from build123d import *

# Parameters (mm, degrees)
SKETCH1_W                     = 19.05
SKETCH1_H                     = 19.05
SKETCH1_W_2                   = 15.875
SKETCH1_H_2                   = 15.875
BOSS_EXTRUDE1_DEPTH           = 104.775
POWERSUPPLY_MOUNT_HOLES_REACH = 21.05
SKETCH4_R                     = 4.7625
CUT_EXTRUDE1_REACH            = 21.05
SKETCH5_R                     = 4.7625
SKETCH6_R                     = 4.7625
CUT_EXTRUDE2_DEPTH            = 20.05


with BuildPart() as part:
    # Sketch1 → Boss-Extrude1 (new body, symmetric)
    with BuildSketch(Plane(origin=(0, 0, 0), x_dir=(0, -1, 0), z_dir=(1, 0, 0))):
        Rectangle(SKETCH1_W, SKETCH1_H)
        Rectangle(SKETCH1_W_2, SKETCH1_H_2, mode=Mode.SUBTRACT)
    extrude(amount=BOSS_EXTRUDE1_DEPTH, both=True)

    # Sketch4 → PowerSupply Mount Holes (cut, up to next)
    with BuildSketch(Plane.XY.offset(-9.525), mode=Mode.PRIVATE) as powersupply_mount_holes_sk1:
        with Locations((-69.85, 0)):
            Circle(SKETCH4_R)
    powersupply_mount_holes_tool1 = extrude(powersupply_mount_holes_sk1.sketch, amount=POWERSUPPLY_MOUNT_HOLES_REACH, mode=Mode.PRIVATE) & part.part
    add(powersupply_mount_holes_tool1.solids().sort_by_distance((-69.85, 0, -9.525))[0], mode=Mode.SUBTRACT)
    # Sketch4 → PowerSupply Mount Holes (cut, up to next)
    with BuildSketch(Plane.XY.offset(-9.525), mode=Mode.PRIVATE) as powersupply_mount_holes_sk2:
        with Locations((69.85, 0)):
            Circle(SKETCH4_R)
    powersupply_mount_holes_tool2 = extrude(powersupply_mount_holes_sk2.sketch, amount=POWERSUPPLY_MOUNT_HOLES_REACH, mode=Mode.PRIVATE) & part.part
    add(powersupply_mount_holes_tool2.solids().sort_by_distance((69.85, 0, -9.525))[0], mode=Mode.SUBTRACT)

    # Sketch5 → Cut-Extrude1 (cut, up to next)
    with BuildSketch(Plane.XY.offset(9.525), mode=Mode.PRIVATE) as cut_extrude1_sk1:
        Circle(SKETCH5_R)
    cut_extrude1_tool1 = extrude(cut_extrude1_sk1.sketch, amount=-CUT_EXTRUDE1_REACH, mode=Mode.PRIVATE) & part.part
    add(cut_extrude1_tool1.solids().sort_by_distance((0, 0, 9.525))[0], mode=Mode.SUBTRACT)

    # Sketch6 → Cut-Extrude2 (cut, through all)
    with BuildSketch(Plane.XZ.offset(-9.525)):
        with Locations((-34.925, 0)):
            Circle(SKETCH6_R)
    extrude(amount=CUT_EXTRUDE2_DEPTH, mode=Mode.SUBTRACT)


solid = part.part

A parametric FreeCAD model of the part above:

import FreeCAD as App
import Part
import Sketcher

V = App.Vector
Q = App.Units.Quantity

doc = App.newDocument("Part")
body = doc.addObject("PartDesign::Body", "Body")

# Sketch on YZ plane
sketch1 = body.newObject("Sketcher::SketchObject", "Sketch")
sketch1.AttachmentSupport = (doc.getObject("YZ_Plane"), [""])
sketch1.MapMode = "FlatFace"
sketch1.addGeometry([
    Part.LineSegment(V(10, -10, 0), V(10, 10, 0)),  # 0
    Part.LineSegment(V(10, 10, 0), V(-10, 10, 0)),  # 1
    Part.LineSegment(V(-10, 10, 0), V(-10, -10, 0)),  # 2
    Part.LineSegment(V(-10, -10, 0), V(10, -10, 0)),  # 3
    Part.LineSegment(V(-8, 8, 0), V(8, 8, 0)),  # 4
    Part.LineSegment(V(8, 8, 0), V(8, -8, 0)),  # 5
    Part.LineSegment(V(8, -8, 0), V(-8, -8, 0)),  # 6
    Part.LineSegment(V(-8, -8, 0), V(-8, 8, 0)),  # 7
], False)
sketch1.addConstraint([
    Sketcher.Constraint("Coincident", 0, 2, 1, 1),
    Sketcher.Constraint("Coincident", 1, 2, 2, 1),
    Sketcher.Constraint("Coincident", 2, 2, 3, 1),
    Sketcher.Constraint("Coincident", 3, 2, 0, 1),
    Sketcher.Constraint("Coincident", 4, 2, 5, 1),
    Sketcher.Constraint("Coincident", 5, 2, 6, 1),
    Sketcher.Constraint("Coincident", 6, 2, 7, 1),
    Sketcher.Constraint("Coincident", 7, 2, 4, 1),
    Sketcher.Constraint("Vertical", 0),
    Sketcher.Constraint("Horizontal", 1),
    Sketcher.Constraint("Vertical", 2),
    Sketcher.Constraint("Horizontal", 3),
    Sketcher.Constraint("Horizontal", 4),
    Sketcher.Constraint("Vertical", 5),
    Sketcher.Constraint("Horizontal", 6),
    Sketcher.Constraint("Vertical", 7),
    Sketcher.Constraint("Symmetric", 0, 2, 2, 2, -1, 1),
    Sketcher.Constraint("Symmetric", 4, 2, 6, 2, -1, 1),
    Sketcher.Constraint("Equal", 3, 0),
    Sketcher.Constraint("Equal", 6, 5),
    Sketcher.Constraint("DistanceX", 1, 2, 1, 1, Q("0.75 in")),
    Sketcher.Constraint("DistanceX", 4, 1, 4, 2, Q("0.625 in")),
])
pad1 = body.newObject("PartDesign::Pad", "Pad")
pad1.Profile = sketch1
pad1.Length = Q("8.25 in")
pad1.Midplane = True

# Sketch on XY plane
sketch2 = body.newObject("Sketcher::SketchObject", "Sketch001")
sketch2.AttachmentSupport = (doc.getObject("XY_Plane"), [""])
sketch2.MapMode = "FlatFace"
sketch2.AttachmentOffset = App.Placement(V(0, 0, -0.375 * 25.4), App.Rotation())
sketch2.addGeometry(Part.Circle(V(-69.8, 0, 0), V(0, 0, 1), 4.8), False)
sketch2.addConstraint([
    Sketcher.Constraint("PointOnObject", 0, 3, -1),
    Sketcher.Constraint("Diameter", 0, Q("0.375 in")),
    Sketcher.Constraint("DistanceX", 0, 3, -1, 1, Q("2.75 in")),
])
pocket1 = body.newObject("PartDesign::Pocket", "Pocket")
pocket1.Profile = sketch2
pocket1.Type = "UpToFirst"
pocket1.Reversed = True

# Sketch on XY plane
sketch3 = body.newObject("Sketcher::SketchObject", "Sketch002")
sketch3.AttachmentSupport = (doc.getObject("XY_Plane"), [""])
sketch3.MapMode = "FlatFace"
sketch3.AttachmentOffset = App.Placement(V(0, 0, -0.375 * 25.4), App.Rotation())
sketch3.addGeometry(Part.Circle(V(69.8, 0, 0), V(0, 0, 1), 4.8), False)
sketch3.addConstraint([
    Sketcher.Constraint("PointOnObject", 0, 3, -1),
    Sketcher.Constraint("Diameter", 0, Q("0.375 in")),
    Sketcher.Constraint("DistanceX", -1, 1, 0, 3, Q("2.75 in")),
])
pocket2 = body.newObject("PartDesign::Pocket", "Pocket001")
pocket2.Profile = sketch3
pocket2.Type = "UpToFirst"
pocket2.Reversed = True

# Sketch on XY plane
sketch4 = body.newObject("Sketcher::SketchObject", "Sketch003")
sketch4.AttachmentSupport = (doc.getObject("XY_Plane"), [""])
sketch4.MapMode = "FlatFace"
sketch4.AttachmentOffset = App.Placement(V(0, 0, 0.375 * 25.4), App.Rotation())
sketch4.addGeometry(Part.Circle(V(0, 0, 0), V(0, 0, 1), 4.8), False)
sketch4.addConstraint([
    Sketcher.Constraint("Coincident", 0, 3, -1, 1),
    Sketcher.Constraint("Diameter", 0, Q("0.375 in")),
])
pocket3 = body.newObject("PartDesign::Pocket", "Pocket002")
pocket3.Profile = sketch4
pocket3.Type = "UpToFirst"

# Sketch on XZ plane
sketch5 = body.newObject("Sketcher::SketchObject", "Sketch004")
sketch5.AttachmentSupport = (doc.getObject("XZ_Plane"), [""])
sketch5.MapMode = "FlatFace"
sketch5.AttachmentOffset = App.Placement(V(0, 0, -0.375 * 25.4), App.Rotation())
sketch5.addGeometry(Part.Circle(V(-34.9, 0, 0), V(0, 0, 1), 4.8), False)
sketch5.addConstraint([
    Sketcher.Constraint("PointOnObject", 0, 3, -1),
    Sketcher.Constraint("Diameter", 0, Q("0.375 in")),
    Sketcher.Constraint("DistanceX", 0, 3, -1, 1, Q("1.375 in")),
])
pocket4 = body.newObject("PartDesign::Pocket", "Pocket003")
pocket4.Profile = sketch5
pocket4.Type = "ThroughAll"
pocket4.Reversed = True

doc.recompute()
